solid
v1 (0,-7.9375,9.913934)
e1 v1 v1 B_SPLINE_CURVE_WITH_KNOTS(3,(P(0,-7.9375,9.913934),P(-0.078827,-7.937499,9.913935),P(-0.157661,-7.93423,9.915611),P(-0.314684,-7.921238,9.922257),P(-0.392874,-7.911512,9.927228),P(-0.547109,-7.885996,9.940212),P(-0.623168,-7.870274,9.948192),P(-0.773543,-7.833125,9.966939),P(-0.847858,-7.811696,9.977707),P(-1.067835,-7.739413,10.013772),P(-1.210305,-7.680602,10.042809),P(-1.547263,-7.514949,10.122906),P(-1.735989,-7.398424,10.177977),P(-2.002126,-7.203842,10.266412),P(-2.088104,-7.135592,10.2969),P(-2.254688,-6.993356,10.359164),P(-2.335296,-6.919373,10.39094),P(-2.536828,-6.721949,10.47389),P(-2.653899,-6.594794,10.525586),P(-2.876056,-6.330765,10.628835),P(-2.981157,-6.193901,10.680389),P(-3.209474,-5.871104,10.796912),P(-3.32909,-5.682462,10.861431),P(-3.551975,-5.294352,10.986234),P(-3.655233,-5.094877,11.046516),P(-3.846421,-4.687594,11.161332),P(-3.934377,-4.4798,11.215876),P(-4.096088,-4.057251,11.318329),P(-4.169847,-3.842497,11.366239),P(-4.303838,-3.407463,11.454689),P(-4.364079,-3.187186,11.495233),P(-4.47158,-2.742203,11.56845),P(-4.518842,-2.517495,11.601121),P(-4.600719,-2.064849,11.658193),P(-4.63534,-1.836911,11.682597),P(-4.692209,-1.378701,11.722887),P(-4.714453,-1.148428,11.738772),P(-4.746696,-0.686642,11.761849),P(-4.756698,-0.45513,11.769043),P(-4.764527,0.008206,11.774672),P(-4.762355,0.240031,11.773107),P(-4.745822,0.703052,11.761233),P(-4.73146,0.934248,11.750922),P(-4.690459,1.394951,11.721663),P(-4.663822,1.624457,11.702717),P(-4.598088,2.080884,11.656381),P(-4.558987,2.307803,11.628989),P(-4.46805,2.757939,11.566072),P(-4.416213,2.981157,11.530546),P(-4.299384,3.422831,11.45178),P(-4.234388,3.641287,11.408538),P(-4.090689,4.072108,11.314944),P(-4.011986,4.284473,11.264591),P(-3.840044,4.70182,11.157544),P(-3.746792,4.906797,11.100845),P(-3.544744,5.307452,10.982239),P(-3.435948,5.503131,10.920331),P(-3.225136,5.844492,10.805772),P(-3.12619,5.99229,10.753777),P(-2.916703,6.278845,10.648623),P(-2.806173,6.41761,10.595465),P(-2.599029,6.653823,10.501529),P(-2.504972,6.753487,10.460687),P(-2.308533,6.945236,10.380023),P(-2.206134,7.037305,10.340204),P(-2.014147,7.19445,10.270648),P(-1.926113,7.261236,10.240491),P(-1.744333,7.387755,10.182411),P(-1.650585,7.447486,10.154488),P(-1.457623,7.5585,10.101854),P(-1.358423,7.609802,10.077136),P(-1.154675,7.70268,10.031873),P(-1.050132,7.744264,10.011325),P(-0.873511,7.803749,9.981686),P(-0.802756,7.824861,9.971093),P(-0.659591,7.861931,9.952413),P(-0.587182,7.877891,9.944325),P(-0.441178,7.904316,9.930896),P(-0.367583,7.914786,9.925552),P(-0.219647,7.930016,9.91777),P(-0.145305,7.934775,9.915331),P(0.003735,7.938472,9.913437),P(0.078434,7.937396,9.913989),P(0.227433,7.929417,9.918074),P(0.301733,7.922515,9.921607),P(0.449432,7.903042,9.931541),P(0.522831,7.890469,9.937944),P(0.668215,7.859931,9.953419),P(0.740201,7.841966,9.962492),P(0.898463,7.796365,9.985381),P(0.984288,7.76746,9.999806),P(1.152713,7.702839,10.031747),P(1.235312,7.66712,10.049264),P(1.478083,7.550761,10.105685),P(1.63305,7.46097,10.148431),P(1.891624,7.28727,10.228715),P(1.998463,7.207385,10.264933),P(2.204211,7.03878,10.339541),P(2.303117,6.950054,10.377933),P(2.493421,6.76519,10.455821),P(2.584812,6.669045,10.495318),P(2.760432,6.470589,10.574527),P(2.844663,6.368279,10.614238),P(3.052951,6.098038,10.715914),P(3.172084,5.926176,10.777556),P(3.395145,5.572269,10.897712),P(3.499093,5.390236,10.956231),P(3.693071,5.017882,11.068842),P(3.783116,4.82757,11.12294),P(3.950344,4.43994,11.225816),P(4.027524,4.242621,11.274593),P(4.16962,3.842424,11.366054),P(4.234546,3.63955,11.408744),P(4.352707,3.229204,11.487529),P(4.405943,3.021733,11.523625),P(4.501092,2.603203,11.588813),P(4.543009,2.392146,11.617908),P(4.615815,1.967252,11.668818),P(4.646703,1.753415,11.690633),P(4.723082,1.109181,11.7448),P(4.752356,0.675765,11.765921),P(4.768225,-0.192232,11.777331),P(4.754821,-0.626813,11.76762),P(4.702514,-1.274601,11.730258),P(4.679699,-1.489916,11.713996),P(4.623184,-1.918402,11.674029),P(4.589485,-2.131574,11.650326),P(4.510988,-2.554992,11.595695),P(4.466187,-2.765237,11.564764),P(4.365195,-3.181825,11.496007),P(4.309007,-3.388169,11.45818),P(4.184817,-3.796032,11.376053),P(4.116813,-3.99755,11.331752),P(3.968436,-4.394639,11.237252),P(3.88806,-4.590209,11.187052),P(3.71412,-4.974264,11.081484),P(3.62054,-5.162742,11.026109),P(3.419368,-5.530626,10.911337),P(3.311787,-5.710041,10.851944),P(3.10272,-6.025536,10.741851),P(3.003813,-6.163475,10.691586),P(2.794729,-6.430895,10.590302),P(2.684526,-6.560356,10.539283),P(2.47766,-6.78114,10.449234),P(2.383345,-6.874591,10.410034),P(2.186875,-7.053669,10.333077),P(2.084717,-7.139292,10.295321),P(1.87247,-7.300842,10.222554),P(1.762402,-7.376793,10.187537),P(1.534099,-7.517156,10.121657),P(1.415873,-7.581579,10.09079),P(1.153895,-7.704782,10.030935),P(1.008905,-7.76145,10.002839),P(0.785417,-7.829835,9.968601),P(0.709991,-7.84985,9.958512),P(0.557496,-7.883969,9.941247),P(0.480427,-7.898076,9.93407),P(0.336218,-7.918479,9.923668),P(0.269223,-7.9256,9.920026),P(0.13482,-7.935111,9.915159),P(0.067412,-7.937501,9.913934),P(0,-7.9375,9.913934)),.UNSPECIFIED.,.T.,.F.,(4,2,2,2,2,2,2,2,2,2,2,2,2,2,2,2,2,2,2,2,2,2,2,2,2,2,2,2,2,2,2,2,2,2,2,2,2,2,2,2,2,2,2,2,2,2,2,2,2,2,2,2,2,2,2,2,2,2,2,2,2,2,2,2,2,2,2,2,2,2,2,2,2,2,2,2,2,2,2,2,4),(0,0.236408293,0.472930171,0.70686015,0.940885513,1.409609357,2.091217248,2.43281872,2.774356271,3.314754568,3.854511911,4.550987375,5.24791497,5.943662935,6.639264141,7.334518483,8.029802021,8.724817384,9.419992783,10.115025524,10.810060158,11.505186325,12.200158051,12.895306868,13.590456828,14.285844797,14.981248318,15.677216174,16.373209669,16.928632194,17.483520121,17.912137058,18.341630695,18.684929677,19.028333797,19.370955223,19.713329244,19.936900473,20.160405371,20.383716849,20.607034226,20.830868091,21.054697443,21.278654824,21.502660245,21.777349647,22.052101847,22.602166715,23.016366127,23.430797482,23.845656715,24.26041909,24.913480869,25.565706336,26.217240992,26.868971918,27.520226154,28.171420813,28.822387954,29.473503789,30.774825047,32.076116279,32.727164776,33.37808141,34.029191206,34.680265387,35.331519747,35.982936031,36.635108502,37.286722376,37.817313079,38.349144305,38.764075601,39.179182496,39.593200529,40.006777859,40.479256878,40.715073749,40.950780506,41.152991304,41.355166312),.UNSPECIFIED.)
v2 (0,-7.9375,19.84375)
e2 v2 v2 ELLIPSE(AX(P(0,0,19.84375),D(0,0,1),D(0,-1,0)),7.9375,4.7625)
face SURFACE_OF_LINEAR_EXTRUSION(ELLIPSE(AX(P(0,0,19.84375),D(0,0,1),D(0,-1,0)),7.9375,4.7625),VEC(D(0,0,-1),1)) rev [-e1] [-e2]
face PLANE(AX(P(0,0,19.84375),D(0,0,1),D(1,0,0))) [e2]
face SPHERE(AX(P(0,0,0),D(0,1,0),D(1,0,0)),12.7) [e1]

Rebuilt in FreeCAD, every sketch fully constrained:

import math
import FreeCAD as App
import Part
import Sketcher
from FreeCAD import Vector
Q = App.Units.Quantity

doc = App.newDocument("Part")
params = doc.addObject("Spreadsheet::Sheet", "Params")
for row, (alias, value) in enumerate([
    ("sketch1_radius", "0.5 in"),
    ("revolution_angle", "360 deg"),
    ("pad1_length", "0.78125 in"),
], start=1):
    params.set(f"A{row}", alias)
    params.set(f"B{row}", "=" + value)
    params.setAlias(f"B{row}", alias)

body = doc.addObject("PartDesign::Body", "Body")

# Sketch on XY plane
sketch1 = body.newObject("Sketcher::SketchObject", "Sketch")
sketch1.AttachmentSupport = (doc.getObject("XY_Plane"), [""])
sketch1.MapMode = "FlatFace"
sketch1.addGeometry(Part.LineSegment(Vector(0, -12.7, 0), Vector(0, 12.7, 0)), False)
sketch1.addGeometry(Part.ArcOfCircle(Part.Circle(Vector(0, 0, 0), Vector(0, 0, 1), 12.7), math.radians(90), math.radians(270)), False)
sketch1.addConstraint(Sketcher.Constraint("Coincident", 0, 1, 1, 2))
sketch1.addConstraint(Sketcher.Constraint("Coincident", 1, 1, 0, 2))
sketch1.addConstraint(Sketcher.Constraint("Vertical", 0))
sketch1.addConstraint(Sketcher.Constraint("Coincident", 1, 3, -1, 1))
sketch1.addConstraint(Sketcher.Constraint("PointOnObject", 0, 1, -2))
sketch1.addConstraint(Sketcher.Constraint("Radius", 1, Q("0.5 in")))
sketch1.setExpression("Constraints[5]", "Params.sketch1_radius")
revolution = body.newObject("PartDesign::Revolution", "Revolution")
revolution.Profile = sketch1
revolution.ReferenceAxis = (sketch1, ["V_Axis"])
revolution.setExpression("Angle", "Params.revolution_angle")

# Sketch on XY plane
sketch2 = body.newObject("Sketcher::SketchObject", "Sketch001")
sketch2.AttachmentSupport = (doc.getObject("XY_Plane"), [""])
sketch2.MapMode = "FlatFace"
sketch2.addGeometry(Part.Ellipse(Vector(0, -7.9375, 0), Vector(4.7625, 0, 0), Vector(0, 0, 0)), False)
sketch2.addConstraint(Sketcher.Constraint("Block", 0))
pad1 = body.newObject("PartDesign::Pad", "Pad")
pad1.Profile = sketch2
pad1.setExpression("Length", "Params.pad1_length")

doc.recompute()
